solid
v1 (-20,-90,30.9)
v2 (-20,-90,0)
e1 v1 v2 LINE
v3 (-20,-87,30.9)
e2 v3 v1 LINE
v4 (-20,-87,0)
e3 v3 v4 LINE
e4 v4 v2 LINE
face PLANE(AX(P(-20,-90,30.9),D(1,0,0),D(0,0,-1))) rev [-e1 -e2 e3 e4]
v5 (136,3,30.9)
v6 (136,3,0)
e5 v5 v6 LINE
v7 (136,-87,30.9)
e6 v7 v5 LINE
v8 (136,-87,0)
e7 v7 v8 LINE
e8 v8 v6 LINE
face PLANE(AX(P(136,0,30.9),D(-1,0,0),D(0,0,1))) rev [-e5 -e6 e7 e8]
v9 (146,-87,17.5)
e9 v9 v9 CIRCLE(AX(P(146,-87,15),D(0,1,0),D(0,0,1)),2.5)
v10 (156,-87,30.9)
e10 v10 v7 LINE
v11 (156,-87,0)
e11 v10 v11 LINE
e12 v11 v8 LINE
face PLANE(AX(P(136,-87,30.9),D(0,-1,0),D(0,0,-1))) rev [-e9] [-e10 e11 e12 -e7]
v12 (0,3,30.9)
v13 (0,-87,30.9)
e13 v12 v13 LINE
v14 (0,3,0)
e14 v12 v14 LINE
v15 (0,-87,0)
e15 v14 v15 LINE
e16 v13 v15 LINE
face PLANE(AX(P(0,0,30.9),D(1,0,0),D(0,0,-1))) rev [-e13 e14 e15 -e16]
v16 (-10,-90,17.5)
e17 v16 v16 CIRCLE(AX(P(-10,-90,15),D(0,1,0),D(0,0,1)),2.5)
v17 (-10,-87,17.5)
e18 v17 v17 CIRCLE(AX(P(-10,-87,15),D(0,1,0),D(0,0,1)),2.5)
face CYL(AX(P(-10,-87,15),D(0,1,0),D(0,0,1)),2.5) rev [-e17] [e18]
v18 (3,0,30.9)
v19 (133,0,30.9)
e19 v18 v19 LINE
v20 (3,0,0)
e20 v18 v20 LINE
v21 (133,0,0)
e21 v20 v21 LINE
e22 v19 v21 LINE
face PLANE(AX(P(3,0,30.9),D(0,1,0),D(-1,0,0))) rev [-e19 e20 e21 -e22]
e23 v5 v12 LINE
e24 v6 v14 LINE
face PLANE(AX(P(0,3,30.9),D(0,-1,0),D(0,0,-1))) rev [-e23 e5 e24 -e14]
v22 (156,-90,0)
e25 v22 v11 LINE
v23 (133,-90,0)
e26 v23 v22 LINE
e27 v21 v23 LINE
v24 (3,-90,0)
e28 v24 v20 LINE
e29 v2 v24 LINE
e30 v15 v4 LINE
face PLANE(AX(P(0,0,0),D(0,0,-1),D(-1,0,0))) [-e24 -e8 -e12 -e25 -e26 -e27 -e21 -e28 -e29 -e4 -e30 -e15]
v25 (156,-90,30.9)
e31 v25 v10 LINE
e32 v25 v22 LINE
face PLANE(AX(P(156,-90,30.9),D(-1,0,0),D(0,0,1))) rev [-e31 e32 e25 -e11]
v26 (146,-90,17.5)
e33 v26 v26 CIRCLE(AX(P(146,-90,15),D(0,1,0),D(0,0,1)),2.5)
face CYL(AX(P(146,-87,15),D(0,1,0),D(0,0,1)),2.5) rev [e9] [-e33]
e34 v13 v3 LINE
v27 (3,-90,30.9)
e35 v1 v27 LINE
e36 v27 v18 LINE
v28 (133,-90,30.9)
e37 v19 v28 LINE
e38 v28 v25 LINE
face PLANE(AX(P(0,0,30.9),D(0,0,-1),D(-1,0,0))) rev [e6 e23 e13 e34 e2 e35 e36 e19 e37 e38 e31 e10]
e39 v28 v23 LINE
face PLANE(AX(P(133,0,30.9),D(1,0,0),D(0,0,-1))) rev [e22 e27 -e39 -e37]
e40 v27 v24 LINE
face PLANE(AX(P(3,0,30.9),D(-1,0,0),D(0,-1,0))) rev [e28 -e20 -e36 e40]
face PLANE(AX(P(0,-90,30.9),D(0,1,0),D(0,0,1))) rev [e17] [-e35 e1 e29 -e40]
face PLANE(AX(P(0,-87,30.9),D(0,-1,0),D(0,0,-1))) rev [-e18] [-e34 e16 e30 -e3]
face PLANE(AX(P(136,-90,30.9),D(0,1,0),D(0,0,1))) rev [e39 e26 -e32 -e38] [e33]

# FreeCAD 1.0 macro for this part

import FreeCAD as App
import Part
import Sketcher

V = App.Vector


def add_polygon(sketch, points):
    """Adds a closed chain of lines whose ends are joined by coincident constraints."""
    first, n = sketch.GeometryCount, len(points)
    for a, b in zip(points, points[1:] + points[:1]):
        sketch.addGeometry(Part.LineSegment(App.Vector(*a, 0), App.Vector(*b, 0)), False)
    for i in range(n):
        sketch.addConstraint(Sketcher.Constraint("Coincident", first + i, 2, first + (i + 1) % n, 1))

doc = App.newDocument("Part")
body = doc.addObject("PartDesign::Body", "Body")

sketch1 = body.newObject("Sketcher::SketchObject", "Sketch")
sketch1.AttachmentSupport = (doc.getObject("XY_Plane"), [""])
sketch1.MapMode = "FlatFace"
add_polygon(sketch1, [(3, 0), (133, 0), (133, -90), (156, -90), (156, -87), (136, -87), (136, 3), (0, 3), (0, -87), (-20, -87), (-20, -90), (3, -90)])
sketch1.addConstraint(Sketcher.Constraint("Horizontal", 0))
sketch1.addConstraint(Sketcher.Constraint("Vertical", 1))
sketch1.addConstraint(Sketcher.Constraint("Horizontal", 2))
sketch1.addConstraint(Sketcher.Constraint("Vertical", 3))
sketch1.addConstraint(Sketcher.Constraint("Horizontal", 4))
sketch1.addConstraint(Sketcher.Constraint("Vertical", 5))
sketch1.addConstraint(Sketcher.Constraint("Horizontal", 6))
sketch1.addConstraint(Sketcher.Constraint("Vertical", 7))
sketch1.addConstraint(Sketcher.Constraint("Horizontal", 8))
sketch1.addConstraint(Sketcher.Constraint("Vertical", 9))
sketch1.addConstraint(Sketcher.Constraint("Horizontal", 10))
sketch1.addConstraint(Sketcher.Constraint("Vertical", 11))
sketch1.addConstraint(Sketcher.Constraint("PointOnObject", 0, 2, -1))
sketch1.addConstraint(Sketcher.Constraint("PointOnObject", 6, 2, -2))
sketch1.addConstraint(Sketcher.Constraint("Horizontal", 4, 2, 7, 2))
sketch1.addConstraint(Sketcher.Constraint("Horizontal", 2, 2, 9, 2))
sketch1.addConstraint(Sketcher.Constraint("Equal", 4, 8))
sketch1.addConstraint(Sketcher.Constraint("Equal", 2, 10))
sketch1.addConstraint(Sketcher.Constraint("Equal", 1, 5))
sketch1.addConstraint(Sketcher.Constraint("DistanceX", 0, 1, 0, 2, 130.0))
sketch1.addConstraint(Sketcher.Constraint("DistanceX", 2, 1, 2, 2, 23.0))
sketch1.addConstraint(Sketcher.Constraint("DistanceX", 4, 2, 4, 1, 20.0))
sketch1.addConstraint(Sketcher.Constraint("DistanceY", 1, 2, 1, 1, 90.0))
sketch1.addConstraint(Sketcher.Constraint("DistanceY", 3, 1, 3, 2, 3.0))
pad1 = body.newObject("PartDesign::Pad", "Pad")
pad1.Profile = sketch1
pad1.Length = 30.9

sketch2 = body.newObject("Sketcher::SketchObject", "Sketch001")
sketch2.AttachmentSupport = (doc.getObject("XZ_Plane"), [""])
sketch2.MapMode = "FlatFace"
sketch2.AttachmentOffset = App.Placement(V(0, 0, 87), App.Rotation())
sketch2.addGeometry(Part.Circle(V(-10, 15, 0), V(0, 0, 1), 2.5), False)
sketch2.addGeometry(Part.Circle(V(146, 15, 0), V(0, 0, 1), 2.5), False)
sketch2.addConstraint(Sketcher.Constraint("Equal", 0, 1))
sketch2.addConstraint(Sketcher.Constraint("Horizontal", 0, 3, 1, 3))
sketch2.addConstraint(Sketcher.Constraint("Diameter", 0, 5.0))
sketch2.addConstraint(Sketcher.Constraint("DistanceX", 0, 3, -1, 1, 10.0))
sketch2.addConstraint(Sketcher.Constraint("DistanceY", -1, 1, 0, 3, 15.0))
sketch2.addConstraint(Sketcher.Constraint("DistanceX", -1, 1, 1, 3, 146.0))
doc.recompute()
hole = body.newObject("PartDesign::Hole", "Hole")
hole.Profile = sketch2
hole.ThreadType = "None"
hole.Diameter = 5
hole.DepthType = "ThroughAll"
hole.Reversed = True

doc.recompute()
